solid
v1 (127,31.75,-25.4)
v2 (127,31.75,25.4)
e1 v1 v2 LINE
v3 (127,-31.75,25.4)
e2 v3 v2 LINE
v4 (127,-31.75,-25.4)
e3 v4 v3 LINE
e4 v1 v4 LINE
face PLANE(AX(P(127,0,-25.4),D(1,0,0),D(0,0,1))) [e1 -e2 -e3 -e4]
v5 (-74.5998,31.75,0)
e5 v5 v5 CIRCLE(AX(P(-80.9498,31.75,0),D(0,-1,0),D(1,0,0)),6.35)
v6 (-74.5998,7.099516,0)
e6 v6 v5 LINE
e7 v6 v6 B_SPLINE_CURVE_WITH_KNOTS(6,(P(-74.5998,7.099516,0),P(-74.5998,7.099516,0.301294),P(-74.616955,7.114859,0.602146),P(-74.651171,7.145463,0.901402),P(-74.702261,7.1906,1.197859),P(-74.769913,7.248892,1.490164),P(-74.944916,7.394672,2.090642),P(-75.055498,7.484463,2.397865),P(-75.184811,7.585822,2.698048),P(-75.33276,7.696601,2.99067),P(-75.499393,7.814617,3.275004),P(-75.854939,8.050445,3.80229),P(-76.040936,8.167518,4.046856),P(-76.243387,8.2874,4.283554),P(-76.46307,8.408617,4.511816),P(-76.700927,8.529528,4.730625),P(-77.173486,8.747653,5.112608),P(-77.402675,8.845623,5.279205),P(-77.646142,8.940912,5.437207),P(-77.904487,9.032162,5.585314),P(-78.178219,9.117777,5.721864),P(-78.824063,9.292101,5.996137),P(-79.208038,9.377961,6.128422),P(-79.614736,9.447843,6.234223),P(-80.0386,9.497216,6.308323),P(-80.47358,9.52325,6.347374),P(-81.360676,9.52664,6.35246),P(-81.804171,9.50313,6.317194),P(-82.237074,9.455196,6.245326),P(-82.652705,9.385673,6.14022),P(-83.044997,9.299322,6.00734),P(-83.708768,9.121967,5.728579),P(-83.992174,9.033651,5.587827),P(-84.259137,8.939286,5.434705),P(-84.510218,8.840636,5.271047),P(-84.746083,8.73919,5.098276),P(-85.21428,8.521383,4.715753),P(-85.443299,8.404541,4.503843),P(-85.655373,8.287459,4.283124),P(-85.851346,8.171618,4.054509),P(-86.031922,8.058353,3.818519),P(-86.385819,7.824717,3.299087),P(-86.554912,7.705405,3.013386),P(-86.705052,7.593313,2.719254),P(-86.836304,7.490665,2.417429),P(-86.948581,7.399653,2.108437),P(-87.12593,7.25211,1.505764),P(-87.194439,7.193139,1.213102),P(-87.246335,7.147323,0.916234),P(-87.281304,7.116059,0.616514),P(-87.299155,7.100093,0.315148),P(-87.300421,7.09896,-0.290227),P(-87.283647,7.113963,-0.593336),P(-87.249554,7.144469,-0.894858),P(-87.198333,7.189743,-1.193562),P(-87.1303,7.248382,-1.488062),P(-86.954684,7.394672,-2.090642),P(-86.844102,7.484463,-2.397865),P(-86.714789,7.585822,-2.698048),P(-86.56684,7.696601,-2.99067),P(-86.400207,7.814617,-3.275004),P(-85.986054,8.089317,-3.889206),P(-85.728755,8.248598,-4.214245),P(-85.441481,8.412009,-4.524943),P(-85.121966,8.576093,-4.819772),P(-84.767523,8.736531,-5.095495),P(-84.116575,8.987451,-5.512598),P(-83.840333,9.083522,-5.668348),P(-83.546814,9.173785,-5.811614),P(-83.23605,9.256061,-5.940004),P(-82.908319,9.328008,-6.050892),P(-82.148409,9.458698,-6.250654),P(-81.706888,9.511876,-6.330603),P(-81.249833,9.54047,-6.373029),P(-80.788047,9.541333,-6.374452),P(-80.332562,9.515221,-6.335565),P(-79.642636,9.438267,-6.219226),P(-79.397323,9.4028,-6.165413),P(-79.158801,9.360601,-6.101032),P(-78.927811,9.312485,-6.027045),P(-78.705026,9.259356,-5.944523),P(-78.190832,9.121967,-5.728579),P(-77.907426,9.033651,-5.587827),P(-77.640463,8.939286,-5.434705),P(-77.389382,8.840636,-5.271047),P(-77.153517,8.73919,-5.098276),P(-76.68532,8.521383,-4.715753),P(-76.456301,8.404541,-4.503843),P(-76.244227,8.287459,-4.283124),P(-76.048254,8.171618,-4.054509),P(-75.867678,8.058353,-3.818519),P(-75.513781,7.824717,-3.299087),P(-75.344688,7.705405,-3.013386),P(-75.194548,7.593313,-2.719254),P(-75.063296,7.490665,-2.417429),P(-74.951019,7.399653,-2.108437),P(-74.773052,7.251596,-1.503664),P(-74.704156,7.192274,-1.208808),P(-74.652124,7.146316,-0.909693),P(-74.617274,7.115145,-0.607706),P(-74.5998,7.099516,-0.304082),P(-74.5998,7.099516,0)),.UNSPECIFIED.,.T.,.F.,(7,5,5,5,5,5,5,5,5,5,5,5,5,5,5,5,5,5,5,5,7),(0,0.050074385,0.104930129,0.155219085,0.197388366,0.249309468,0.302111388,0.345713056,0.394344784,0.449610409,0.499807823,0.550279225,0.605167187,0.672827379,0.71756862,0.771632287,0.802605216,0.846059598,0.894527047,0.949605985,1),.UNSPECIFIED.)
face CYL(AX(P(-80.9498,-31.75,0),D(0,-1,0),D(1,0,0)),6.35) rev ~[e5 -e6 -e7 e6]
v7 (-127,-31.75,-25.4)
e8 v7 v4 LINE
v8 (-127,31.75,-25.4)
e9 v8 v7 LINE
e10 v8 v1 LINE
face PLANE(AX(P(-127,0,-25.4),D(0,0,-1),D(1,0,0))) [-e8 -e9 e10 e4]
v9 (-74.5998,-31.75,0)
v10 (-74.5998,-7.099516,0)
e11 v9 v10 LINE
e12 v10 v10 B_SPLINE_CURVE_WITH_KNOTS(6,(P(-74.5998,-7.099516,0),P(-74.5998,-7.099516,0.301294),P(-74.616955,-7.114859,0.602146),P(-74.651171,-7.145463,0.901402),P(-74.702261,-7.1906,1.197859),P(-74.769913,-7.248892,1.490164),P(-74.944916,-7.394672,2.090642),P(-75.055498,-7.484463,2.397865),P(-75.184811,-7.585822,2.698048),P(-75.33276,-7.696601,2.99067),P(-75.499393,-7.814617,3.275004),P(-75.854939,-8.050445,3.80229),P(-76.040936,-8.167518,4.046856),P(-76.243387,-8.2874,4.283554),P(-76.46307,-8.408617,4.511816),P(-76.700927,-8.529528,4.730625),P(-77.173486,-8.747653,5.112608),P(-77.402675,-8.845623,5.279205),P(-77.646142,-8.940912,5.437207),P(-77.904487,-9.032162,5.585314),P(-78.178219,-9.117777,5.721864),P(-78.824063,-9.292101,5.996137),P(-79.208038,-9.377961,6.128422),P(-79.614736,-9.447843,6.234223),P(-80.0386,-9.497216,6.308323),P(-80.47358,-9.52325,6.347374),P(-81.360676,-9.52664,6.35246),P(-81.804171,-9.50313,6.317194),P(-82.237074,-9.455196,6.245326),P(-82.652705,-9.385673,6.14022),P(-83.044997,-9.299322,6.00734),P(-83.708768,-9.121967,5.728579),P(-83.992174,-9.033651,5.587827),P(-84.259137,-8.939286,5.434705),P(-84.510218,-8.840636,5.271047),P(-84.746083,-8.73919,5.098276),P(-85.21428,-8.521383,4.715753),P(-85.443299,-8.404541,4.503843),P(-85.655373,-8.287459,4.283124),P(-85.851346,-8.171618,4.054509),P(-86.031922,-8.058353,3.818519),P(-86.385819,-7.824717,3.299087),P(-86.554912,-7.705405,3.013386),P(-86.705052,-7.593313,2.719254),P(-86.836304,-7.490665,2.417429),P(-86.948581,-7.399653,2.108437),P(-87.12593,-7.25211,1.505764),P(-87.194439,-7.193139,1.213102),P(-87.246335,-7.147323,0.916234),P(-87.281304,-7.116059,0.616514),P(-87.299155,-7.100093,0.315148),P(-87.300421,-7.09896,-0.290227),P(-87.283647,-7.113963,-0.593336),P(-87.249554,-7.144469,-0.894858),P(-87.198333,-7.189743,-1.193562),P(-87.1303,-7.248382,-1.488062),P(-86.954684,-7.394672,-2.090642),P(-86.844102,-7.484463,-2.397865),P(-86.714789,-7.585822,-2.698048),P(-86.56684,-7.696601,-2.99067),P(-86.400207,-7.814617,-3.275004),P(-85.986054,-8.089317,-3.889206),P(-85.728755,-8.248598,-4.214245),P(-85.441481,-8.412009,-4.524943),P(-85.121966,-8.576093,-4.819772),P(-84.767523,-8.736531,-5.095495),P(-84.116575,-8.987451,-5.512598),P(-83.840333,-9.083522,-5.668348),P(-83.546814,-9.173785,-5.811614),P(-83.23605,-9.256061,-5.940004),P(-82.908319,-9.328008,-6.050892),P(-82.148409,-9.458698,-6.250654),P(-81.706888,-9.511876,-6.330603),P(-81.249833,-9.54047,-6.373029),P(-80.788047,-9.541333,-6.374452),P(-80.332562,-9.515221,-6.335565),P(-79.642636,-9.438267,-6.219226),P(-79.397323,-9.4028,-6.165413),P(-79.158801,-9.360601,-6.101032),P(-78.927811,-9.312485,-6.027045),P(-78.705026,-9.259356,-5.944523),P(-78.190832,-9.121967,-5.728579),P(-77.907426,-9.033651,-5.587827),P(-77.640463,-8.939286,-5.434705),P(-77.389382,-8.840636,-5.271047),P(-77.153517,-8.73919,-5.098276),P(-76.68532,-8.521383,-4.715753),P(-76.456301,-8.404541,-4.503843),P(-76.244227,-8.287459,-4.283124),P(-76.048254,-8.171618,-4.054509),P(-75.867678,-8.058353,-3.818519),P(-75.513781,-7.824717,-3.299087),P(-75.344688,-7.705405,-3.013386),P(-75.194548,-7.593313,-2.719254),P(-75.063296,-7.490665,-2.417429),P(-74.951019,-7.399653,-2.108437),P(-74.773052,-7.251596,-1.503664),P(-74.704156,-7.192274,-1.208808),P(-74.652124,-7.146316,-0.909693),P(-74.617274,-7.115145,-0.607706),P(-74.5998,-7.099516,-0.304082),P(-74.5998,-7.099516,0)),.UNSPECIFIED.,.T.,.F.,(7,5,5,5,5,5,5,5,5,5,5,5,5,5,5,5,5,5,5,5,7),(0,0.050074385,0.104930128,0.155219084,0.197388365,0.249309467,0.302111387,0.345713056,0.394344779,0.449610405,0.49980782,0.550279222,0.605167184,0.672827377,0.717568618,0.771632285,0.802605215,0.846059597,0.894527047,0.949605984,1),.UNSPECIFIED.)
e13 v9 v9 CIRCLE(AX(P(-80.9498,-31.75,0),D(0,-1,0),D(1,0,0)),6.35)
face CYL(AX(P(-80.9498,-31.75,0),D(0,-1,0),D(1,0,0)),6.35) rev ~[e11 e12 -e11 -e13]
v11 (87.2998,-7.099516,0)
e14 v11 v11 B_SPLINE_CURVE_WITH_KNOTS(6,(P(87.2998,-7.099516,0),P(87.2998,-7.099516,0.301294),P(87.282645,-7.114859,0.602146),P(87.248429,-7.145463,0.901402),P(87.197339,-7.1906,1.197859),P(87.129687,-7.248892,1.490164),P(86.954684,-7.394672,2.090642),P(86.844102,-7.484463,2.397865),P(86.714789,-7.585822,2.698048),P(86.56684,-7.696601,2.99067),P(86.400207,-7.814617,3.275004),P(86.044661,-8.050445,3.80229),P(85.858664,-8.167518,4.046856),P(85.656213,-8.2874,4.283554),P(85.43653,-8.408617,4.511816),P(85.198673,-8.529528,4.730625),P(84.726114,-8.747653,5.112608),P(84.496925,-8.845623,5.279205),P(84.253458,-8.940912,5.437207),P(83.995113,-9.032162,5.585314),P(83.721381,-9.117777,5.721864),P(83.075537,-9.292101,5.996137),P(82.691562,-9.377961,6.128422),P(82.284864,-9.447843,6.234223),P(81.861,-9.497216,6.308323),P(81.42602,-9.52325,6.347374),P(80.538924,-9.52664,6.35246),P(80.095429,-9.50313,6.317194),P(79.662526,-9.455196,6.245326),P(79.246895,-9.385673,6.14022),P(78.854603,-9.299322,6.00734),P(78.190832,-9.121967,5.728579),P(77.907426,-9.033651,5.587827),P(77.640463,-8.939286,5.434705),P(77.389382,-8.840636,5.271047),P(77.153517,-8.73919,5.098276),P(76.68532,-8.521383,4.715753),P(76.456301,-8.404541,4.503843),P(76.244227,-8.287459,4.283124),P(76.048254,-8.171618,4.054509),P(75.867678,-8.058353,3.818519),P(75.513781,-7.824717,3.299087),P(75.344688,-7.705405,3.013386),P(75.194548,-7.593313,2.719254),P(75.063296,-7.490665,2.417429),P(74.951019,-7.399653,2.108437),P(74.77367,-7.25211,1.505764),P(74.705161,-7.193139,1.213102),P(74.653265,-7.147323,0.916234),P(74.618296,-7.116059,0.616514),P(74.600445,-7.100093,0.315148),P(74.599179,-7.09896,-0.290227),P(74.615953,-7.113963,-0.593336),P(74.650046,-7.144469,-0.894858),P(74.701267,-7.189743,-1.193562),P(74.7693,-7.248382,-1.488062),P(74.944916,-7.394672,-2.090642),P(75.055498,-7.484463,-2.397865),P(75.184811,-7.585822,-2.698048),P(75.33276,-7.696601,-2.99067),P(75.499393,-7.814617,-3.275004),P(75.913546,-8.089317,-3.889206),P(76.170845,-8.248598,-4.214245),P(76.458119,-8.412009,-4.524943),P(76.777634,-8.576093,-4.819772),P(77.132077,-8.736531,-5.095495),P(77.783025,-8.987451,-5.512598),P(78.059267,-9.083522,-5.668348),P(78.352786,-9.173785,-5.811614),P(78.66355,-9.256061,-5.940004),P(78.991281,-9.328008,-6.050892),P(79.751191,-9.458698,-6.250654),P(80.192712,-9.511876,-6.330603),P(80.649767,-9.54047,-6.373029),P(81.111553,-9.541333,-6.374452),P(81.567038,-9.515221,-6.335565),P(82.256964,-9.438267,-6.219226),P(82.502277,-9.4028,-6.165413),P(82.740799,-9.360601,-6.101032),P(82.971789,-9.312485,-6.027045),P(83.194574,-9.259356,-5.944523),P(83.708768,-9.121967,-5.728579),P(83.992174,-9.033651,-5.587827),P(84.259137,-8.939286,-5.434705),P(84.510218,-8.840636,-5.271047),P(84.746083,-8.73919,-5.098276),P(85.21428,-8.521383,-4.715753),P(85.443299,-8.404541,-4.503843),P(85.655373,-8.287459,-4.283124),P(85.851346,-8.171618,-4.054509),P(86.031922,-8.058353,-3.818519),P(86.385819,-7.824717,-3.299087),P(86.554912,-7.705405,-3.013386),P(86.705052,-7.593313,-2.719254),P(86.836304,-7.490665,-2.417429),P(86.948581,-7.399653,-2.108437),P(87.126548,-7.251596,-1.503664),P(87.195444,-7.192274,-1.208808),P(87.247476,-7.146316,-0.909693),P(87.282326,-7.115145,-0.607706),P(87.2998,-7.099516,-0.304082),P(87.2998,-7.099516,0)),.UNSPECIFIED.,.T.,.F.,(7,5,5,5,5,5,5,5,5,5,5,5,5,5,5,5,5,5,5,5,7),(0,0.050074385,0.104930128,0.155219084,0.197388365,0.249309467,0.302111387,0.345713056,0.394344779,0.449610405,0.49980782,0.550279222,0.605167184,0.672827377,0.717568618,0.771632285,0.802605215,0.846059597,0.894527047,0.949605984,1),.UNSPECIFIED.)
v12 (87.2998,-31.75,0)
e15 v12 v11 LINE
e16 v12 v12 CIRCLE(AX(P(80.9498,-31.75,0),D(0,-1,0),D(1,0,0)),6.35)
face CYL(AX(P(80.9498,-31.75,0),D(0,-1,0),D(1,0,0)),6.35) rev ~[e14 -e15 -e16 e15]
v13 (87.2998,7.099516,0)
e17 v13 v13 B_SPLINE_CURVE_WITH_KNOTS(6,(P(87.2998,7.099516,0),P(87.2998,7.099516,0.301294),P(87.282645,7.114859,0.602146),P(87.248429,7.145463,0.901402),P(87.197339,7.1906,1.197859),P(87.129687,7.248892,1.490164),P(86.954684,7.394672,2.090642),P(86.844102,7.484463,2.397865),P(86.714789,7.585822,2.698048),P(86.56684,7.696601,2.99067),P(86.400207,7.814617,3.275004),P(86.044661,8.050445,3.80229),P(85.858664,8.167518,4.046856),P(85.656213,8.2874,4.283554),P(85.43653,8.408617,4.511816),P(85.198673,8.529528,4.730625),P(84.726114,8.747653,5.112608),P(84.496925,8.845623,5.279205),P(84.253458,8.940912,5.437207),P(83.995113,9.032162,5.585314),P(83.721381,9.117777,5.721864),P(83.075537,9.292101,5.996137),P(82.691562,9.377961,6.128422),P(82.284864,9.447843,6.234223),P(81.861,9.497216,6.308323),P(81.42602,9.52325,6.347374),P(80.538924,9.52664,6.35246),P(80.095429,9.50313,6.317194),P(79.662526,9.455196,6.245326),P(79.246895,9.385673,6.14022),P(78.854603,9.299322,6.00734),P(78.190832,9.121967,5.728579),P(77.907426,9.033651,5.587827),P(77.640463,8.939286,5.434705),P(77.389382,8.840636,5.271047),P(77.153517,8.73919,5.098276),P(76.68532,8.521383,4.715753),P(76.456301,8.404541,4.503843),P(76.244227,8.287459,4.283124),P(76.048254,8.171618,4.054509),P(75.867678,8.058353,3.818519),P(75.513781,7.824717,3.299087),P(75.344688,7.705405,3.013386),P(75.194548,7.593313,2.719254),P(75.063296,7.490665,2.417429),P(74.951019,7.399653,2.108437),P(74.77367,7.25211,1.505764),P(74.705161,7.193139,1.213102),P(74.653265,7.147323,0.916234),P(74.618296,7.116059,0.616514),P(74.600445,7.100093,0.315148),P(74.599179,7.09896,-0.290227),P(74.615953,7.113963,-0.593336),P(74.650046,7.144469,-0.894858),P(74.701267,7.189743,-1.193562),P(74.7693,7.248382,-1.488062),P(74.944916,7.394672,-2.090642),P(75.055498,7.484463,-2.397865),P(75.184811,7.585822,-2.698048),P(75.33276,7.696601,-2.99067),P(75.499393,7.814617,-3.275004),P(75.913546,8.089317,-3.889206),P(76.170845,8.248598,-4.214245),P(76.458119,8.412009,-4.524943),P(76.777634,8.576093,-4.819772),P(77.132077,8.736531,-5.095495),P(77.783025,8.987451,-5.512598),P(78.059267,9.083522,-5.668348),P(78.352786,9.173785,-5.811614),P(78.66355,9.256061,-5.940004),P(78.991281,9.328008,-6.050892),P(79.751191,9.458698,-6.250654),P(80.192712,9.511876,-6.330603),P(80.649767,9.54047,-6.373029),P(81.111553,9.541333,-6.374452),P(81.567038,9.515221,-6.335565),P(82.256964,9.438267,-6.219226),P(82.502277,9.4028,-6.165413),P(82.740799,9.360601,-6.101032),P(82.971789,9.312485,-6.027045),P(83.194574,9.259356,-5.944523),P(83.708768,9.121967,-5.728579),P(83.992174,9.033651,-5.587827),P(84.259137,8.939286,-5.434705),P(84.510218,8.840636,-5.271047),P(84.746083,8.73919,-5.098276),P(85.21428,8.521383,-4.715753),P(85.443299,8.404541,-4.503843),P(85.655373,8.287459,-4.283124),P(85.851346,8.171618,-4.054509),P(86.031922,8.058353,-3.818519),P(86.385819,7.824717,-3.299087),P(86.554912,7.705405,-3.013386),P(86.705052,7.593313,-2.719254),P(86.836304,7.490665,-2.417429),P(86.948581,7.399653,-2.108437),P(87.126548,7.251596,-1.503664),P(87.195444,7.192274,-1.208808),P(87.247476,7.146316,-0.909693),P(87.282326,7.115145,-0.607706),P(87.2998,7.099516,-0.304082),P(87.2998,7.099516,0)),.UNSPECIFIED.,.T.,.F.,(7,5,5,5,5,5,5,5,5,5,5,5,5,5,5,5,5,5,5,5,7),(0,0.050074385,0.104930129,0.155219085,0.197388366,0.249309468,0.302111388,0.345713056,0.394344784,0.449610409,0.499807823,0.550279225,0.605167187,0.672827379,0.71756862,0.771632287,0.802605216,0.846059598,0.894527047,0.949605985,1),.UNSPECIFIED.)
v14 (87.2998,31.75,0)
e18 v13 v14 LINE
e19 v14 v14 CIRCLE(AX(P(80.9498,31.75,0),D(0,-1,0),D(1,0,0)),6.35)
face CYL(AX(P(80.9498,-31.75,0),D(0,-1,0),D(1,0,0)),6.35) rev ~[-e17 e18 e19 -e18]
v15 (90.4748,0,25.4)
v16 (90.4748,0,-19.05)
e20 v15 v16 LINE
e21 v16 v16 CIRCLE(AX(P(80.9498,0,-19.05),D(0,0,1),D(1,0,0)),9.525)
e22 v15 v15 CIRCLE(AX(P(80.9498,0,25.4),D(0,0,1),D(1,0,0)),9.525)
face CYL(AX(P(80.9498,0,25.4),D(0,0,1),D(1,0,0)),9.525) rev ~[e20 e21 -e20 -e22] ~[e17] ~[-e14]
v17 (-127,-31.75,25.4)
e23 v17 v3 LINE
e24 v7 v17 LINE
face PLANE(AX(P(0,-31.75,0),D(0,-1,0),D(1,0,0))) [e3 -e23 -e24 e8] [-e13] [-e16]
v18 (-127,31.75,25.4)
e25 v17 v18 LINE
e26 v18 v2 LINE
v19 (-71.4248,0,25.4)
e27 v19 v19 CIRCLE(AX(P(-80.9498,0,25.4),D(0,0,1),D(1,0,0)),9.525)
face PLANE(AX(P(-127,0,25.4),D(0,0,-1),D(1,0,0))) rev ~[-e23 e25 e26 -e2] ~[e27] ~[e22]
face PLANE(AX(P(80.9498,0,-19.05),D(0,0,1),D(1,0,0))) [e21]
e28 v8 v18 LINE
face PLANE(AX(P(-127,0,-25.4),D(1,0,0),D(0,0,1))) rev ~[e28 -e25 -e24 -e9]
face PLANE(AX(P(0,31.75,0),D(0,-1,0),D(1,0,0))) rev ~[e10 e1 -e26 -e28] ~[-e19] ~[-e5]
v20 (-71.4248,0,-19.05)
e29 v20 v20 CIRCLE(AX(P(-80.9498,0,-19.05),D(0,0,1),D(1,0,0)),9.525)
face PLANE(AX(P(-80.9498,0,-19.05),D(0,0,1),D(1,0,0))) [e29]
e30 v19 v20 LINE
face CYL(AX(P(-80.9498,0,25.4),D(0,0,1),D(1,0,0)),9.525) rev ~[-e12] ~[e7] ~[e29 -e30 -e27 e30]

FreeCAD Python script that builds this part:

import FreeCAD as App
import Part
import Sketcher

V = App.Vector
Q = App.Units.Quantity

doc = App.newDocument("Part")
body = doc.addObject("PartDesign::Body", "Body")

# Sketch on XZ plane
sketch1 = body.newObject("Sketcher::SketchObject", "Sketch")
sketch1.AttachmentSupport = (doc.getObject("XZ_Plane"), [""])
sketch1.MapMode = "FlatFace"
sketch1.addGeometry([
    Part.LineSegment(V(-127, 25, 0), V(-127, -25, 0)),
    Part.LineSegment(V(-127, -25, 0), V(127, -25, 0)),
    Part.LineSegment(V(127, -25, 0), V(127, 25, 0)),
    Part.LineSegment(V(127, 25, 0), V(-127, 25, 0)),
], False)
sketch1.addConstraint([
    Sketcher.Constraint("Coincident", 0, 2, 1, 1),
    Sketcher.Constraint("Coincident", 1, 2, 2, 1),
    Sketcher.Constraint("Coincident", 2, 2, 3, 1),
    Sketcher.Constraint("Coincident", 3, 2, 0, 1),
    Sketcher.Constraint("Vertical", 0),
    Sketcher.Constraint("Horizontal", 1),
    Sketcher.Constraint("Vertical", 2),
    Sketcher.Constraint("Horizontal", 3),
    Sketcher.Constraint("Symmetric", 0, 2, 2, 2, -1, 1),
    Sketcher.Constraint("DistanceX", 1, 1, 1, 2, Q("10 in")),
    Sketcher.Constraint("DistanceY", 0, 2, 0, 1, Q("2 in")),
])
pad1 = body.newObject("PartDesign::Pad", "Pad")
pad1.Profile = sketch1
pad1.Length = Q("2.5 in")
pad1.Midplane = True

# Sketch on XY plane
sketch2 = body.newObject("Sketcher::SketchObject", "Sketch001")
sketch2.AttachmentSupport = (doc.getObject("XY_Plane"), [""])
sketch2.MapMode = "FlatFace"
sketch2.AttachmentOffset = App.Placement(V(0, 0, 1 * 25.4), App.Rotation())
sketch2.addGeometry([
    Part.Circle(V(-81, 0, 0), V(0, 0, 1), 10),
    Part.Circle(V(81, 0, 0), V(0, 0, 1), 10),
], False)
sketch2.addConstraint([
    Sketcher.Constraint("Equal", 0, 1),
    Sketcher.Constraint("Symmetric", 0, 3, 1, 3, -1, 1),
    Sketcher.Constraint("PointOnObject", 0, 3, -1),
    Sketcher.Constraint("Diameter", 0, Q("0.75 in")),
    Sketcher.Constraint("DistanceX", 0, 3, -1, 1, Q("3.187 in")),
])
pocket1 = body.newObject("PartDesign::Pocket", "Pocket")
pocket1.Profile = sketch2
pocket1.Length = Q("1.75 in")

# Sketch on XZ plane
sketch3 = body.newObject("Sketcher::SketchObject", "Sketch002")
sketch3.AttachmentSupport = (doc.getObject("XZ_Plane"), [""])
sketch3.MapMode = "FlatFace"
sketch3.AttachmentOffset = App.Placement(V(0, 0, 1.25 * 25.4), App.Rotation())
sketch3.addGeometry([
    Part.Circle(V(-81, 0, 0), V(0, 0, 1), 6),
    Part.Circle(V(81, 0, 0), V(0, 0, 1), 6),
], False)
sketch3.addConstraint([
    Sketcher.Constraint("Equal", 0, 1),
    Sketcher.Constraint("Symmetric", 0, 3, 1, 3, -1, 1),
    Sketcher.Constraint("PointOnObject", 0, 3, -1),
    Sketcher.Constraint("Diameter", 0, Q("0.5 in")),
    Sketcher.Constraint("DistanceX", 0, 3, -1, 1, Q("3.187 in")),
])
pocket2 = body.newObject("PartDesign::Pocket", "Pocket001")
pocket2.Profile = sketch3
pocket2.Type = "ThroughAll"

doc.recompute()
